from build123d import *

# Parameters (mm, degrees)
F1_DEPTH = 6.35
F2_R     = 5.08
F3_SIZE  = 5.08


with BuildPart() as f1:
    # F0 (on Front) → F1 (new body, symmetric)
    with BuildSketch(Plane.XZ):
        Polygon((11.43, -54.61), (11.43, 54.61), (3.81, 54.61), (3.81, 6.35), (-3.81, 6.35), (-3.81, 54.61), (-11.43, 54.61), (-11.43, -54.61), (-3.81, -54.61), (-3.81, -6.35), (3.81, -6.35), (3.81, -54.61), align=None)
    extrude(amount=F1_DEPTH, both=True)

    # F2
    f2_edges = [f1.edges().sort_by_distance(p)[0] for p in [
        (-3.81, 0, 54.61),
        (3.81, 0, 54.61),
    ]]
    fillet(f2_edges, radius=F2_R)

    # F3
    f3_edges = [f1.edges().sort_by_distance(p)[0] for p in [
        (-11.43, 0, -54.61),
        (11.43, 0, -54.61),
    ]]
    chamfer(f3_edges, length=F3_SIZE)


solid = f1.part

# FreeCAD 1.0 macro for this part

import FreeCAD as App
import Part
import Sketcher
from FreeCAD import Vector
Q = App.Units.Quantity


def edges_at(feature, points):
    """Names of the edges that pass closest to the given points."""
    edges = feature.Shape.Edges
    near = lambda p: min(range(len(edges)), key=lambda i: edges[i].distToShape(Part.Vertex(*p))[0])
    return sorted({f"Edge{near(p) + 1}" for p in points})

doc = App.newDocument("Part")
params = doc.addObject("Spreadsheet::Sheet", "Params")
for row, (alias, value) in enumerate([
    ("sketch1_width", "0.3 in"),
    ("sketch1_height", "4.3 in"),
    ("sketch1_height2", "1.9 in"),
    ("pad1_length", "0.5 in"),
    ("fillet_radius", "0.2 in"),
    ("chamfer_size", "0.2 in"),
], start=1):
    params.set(f"A{row}", alias)
    params.set(f"B{row}", "=" + value)
    params.setAlias(f"B{row}", alias)

body = doc.addObject("PartDesign::Body", "Body")

# Sketch on XZ plane
sketch1 = body.newObject("Sketcher::SketchObject", "Sketch")
sketch1.AttachmentSupport = (doc.getObject("XZ_Plane"), [""])
sketch1.MapMode = "FlatFace"
sketch1.addGeometry(Part.LineSegment(Vector(11.43, -54.61, 0), Vector(11.43, 54.61, 0)), False)
sketch1.addGeometry(Part.LineSegment(Vector(11.43, 54.61, 0), Vector(3.81, 54.61, 0)), False)
sketch1.addGeometry(Part.LineSegment(Vector(3.81, 54.61, 0), Vector(3.81, 6.35, 0)), False)
sketch1.addGeometry(Part.LineSegment(Vector(3.81, 6.35, 0), Vector(-3.81, 6.35, 0)), False)
sketch1.addGeometry(Part.LineSegment(Vector(-3.81, 6.35, 0), Vector(-3.81, 54.61, 0)), False)
sketch1.addGeometry(Part.LineSegment(Vector(-3.81, 54.61, 0), Vector(-11.43, 54.61, 0)), False)
sketch1.addGeometry(Part.LineSegment(Vector(-11.43, 54.61, 0), Vector(-11.43, -54.61, 0)), False)
sketch1.addGeometry(Part.LineSegment(Vector(-11.43, -54.61, 0), Vector(-3.81, -54.61, 0)), False)
sketch1.addGeometry(Part.LineSegment(Vector(-3.81, -54.61, 0), Vector(-3.81, -6.35, 0)), False)
sketch1.addGeometry(Part.LineSegment(Vector(-3.81, -6.35, 0), Vector(3.81, -6.35, 0)), False)
sketch1.addGeometry(Part.LineSegment(Vector(3.81, -6.35, 0), Vector(3.81, -54.61, 0)), False)
sketch1.addGeometry(Part.LineSegment(Vector(3.81, -54.61, 0), Vector(11.43, -54.61, 0)), False)
sketch1.addConstraint(Sketcher.Constraint("Coincident", 0, 2, 1, 1))
sketch1.addConstraint(Sketcher.Constraint("Coincident", 1, 2, 2, 1))
sketch1.addConstraint(Sketcher.Constraint("Coincident", 2, 2, 3, 1))
sketch1.addConstraint(Sketcher.Constraint("Coincident", 3, 2, 4, 1))
sketch1.addConstraint(Sketcher.Constraint("Coincident", 4, 2, 5, 1))
sketch1.addConstraint(Sketcher.Constraint("Coincident", 5, 2, 6, 1))
sketch1.addConstraint(Sketcher.Constraint("Coincident", 6, 2, 7, 1))
sketch1.addConstraint(Sketcher.Constraint("Coincident", 7, 2, 8, 1))
sketch1.addConstraint(Sketcher.Constraint("Coincident", 8, 2, 9, 1))
sketch1.addConstraint(Sketcher.Constraint("Coincident", 9, 2, 10, 1))
sketch1.addConstraint(Sketcher.Constraint("Coincident", 10, 2, 11, 1))
sketch1.addConstraint(Sketcher.Constraint("Coincident", 11, 2, 0, 1))
sketch1.addConstraint(Sketcher.Constraint("Vertical", 0))
sketch1.addConstraint(Sketcher.Constraint("Horizontal", 1))
sketch1.addConstraint(Sketcher.Constraint("Vertical", 2))
sketch1.addConstraint(Sketcher.Constraint("Horizontal", 3))
sketch1.addConstraint(Sketcher.Constraint("Vertical", 4))
sketch1.addConstraint(Sketcher.Constraint("Horizontal", 5))
sketch1.addConstraint(Sketcher.Constraint("Vertical", 6))
sketch1.addConstraint(Sketcher.Constraint("Horizontal", 7))
sketch1.addConstraint(Sketcher.Constraint("Vertical", 8))
sketch1.addConstraint(Sketcher.Constraint("Horizontal", 9))
sketch1.addConstraint(Sketcher.Constraint("Vertical", 10))
sketch1.addConstraint(Sketcher.Constraint("Horizontal", 11))
sketch1.addConstraint(Sketcher.Constraint("Symmetric", 0, 2, 6, 2, -1, 1))
sketch1.addConstraint(Sketcher.Constraint("Symmetric", 2, 2, 8, 2, -1, 1))
sketch1.addConstraint(Sketcher.Constraint("Symmetric", 4, 2, 10, 2, -1, 1))
sketch1.addConstraint(Sketcher.Constraint("Symmetric", 1, 2, 4, 2, -2))
sketch1.addConstraint(Sketcher.Constraint("Equal", 1, 3))
sketch1.addConstraint(Sketcher.Constraint("DistanceX", 1, 2, 1, 1, Q("0.3 in")))
sketch1.addConstraint(Sketcher.Constraint("DistanceY", 0, 1, 0, 2, Q("4.3 in")))
sketch1.addConstraint(Sketcher.Constraint("DistanceY", 2, 2, 2, 1, Q("1.9 in")))
sketch1.setExpression("Constraints[29]", "Params.sketch1_width")
sketch1.setExpression("Constraints[30]", "Params.sketch1_height")
sketch1.setExpression("Constraints[31]", "Params.sketch1_height2")
pad1 = body.newObject("PartDesign::Pad", "Pad")
pad1.Profile = sketch1
pad1.setExpression("Length", "Params.pad1_length")
pad1.Midplane = True
doc.recompute()

fillet = body.newObject("PartDesign::Fillet", "Fillet")
fillet.Base = (pad1, edges_at(pad1, [(-3.81, 0, 54.61), (3.81, 0, 54.61)]))
fillet.setExpression("Radius", "Params.fillet_radius")
doc.recompute()

chamfer = body.newObject("PartDesign::Chamfer", "Chamfer")
chamfer.Base = (fillet, edges_at(fillet, [(-11.43, 0, -54.61), (11.43, 0, -54.61)]))
chamfer.setExpression("Size", "Params.chamfer_size")

doc.recompute()
